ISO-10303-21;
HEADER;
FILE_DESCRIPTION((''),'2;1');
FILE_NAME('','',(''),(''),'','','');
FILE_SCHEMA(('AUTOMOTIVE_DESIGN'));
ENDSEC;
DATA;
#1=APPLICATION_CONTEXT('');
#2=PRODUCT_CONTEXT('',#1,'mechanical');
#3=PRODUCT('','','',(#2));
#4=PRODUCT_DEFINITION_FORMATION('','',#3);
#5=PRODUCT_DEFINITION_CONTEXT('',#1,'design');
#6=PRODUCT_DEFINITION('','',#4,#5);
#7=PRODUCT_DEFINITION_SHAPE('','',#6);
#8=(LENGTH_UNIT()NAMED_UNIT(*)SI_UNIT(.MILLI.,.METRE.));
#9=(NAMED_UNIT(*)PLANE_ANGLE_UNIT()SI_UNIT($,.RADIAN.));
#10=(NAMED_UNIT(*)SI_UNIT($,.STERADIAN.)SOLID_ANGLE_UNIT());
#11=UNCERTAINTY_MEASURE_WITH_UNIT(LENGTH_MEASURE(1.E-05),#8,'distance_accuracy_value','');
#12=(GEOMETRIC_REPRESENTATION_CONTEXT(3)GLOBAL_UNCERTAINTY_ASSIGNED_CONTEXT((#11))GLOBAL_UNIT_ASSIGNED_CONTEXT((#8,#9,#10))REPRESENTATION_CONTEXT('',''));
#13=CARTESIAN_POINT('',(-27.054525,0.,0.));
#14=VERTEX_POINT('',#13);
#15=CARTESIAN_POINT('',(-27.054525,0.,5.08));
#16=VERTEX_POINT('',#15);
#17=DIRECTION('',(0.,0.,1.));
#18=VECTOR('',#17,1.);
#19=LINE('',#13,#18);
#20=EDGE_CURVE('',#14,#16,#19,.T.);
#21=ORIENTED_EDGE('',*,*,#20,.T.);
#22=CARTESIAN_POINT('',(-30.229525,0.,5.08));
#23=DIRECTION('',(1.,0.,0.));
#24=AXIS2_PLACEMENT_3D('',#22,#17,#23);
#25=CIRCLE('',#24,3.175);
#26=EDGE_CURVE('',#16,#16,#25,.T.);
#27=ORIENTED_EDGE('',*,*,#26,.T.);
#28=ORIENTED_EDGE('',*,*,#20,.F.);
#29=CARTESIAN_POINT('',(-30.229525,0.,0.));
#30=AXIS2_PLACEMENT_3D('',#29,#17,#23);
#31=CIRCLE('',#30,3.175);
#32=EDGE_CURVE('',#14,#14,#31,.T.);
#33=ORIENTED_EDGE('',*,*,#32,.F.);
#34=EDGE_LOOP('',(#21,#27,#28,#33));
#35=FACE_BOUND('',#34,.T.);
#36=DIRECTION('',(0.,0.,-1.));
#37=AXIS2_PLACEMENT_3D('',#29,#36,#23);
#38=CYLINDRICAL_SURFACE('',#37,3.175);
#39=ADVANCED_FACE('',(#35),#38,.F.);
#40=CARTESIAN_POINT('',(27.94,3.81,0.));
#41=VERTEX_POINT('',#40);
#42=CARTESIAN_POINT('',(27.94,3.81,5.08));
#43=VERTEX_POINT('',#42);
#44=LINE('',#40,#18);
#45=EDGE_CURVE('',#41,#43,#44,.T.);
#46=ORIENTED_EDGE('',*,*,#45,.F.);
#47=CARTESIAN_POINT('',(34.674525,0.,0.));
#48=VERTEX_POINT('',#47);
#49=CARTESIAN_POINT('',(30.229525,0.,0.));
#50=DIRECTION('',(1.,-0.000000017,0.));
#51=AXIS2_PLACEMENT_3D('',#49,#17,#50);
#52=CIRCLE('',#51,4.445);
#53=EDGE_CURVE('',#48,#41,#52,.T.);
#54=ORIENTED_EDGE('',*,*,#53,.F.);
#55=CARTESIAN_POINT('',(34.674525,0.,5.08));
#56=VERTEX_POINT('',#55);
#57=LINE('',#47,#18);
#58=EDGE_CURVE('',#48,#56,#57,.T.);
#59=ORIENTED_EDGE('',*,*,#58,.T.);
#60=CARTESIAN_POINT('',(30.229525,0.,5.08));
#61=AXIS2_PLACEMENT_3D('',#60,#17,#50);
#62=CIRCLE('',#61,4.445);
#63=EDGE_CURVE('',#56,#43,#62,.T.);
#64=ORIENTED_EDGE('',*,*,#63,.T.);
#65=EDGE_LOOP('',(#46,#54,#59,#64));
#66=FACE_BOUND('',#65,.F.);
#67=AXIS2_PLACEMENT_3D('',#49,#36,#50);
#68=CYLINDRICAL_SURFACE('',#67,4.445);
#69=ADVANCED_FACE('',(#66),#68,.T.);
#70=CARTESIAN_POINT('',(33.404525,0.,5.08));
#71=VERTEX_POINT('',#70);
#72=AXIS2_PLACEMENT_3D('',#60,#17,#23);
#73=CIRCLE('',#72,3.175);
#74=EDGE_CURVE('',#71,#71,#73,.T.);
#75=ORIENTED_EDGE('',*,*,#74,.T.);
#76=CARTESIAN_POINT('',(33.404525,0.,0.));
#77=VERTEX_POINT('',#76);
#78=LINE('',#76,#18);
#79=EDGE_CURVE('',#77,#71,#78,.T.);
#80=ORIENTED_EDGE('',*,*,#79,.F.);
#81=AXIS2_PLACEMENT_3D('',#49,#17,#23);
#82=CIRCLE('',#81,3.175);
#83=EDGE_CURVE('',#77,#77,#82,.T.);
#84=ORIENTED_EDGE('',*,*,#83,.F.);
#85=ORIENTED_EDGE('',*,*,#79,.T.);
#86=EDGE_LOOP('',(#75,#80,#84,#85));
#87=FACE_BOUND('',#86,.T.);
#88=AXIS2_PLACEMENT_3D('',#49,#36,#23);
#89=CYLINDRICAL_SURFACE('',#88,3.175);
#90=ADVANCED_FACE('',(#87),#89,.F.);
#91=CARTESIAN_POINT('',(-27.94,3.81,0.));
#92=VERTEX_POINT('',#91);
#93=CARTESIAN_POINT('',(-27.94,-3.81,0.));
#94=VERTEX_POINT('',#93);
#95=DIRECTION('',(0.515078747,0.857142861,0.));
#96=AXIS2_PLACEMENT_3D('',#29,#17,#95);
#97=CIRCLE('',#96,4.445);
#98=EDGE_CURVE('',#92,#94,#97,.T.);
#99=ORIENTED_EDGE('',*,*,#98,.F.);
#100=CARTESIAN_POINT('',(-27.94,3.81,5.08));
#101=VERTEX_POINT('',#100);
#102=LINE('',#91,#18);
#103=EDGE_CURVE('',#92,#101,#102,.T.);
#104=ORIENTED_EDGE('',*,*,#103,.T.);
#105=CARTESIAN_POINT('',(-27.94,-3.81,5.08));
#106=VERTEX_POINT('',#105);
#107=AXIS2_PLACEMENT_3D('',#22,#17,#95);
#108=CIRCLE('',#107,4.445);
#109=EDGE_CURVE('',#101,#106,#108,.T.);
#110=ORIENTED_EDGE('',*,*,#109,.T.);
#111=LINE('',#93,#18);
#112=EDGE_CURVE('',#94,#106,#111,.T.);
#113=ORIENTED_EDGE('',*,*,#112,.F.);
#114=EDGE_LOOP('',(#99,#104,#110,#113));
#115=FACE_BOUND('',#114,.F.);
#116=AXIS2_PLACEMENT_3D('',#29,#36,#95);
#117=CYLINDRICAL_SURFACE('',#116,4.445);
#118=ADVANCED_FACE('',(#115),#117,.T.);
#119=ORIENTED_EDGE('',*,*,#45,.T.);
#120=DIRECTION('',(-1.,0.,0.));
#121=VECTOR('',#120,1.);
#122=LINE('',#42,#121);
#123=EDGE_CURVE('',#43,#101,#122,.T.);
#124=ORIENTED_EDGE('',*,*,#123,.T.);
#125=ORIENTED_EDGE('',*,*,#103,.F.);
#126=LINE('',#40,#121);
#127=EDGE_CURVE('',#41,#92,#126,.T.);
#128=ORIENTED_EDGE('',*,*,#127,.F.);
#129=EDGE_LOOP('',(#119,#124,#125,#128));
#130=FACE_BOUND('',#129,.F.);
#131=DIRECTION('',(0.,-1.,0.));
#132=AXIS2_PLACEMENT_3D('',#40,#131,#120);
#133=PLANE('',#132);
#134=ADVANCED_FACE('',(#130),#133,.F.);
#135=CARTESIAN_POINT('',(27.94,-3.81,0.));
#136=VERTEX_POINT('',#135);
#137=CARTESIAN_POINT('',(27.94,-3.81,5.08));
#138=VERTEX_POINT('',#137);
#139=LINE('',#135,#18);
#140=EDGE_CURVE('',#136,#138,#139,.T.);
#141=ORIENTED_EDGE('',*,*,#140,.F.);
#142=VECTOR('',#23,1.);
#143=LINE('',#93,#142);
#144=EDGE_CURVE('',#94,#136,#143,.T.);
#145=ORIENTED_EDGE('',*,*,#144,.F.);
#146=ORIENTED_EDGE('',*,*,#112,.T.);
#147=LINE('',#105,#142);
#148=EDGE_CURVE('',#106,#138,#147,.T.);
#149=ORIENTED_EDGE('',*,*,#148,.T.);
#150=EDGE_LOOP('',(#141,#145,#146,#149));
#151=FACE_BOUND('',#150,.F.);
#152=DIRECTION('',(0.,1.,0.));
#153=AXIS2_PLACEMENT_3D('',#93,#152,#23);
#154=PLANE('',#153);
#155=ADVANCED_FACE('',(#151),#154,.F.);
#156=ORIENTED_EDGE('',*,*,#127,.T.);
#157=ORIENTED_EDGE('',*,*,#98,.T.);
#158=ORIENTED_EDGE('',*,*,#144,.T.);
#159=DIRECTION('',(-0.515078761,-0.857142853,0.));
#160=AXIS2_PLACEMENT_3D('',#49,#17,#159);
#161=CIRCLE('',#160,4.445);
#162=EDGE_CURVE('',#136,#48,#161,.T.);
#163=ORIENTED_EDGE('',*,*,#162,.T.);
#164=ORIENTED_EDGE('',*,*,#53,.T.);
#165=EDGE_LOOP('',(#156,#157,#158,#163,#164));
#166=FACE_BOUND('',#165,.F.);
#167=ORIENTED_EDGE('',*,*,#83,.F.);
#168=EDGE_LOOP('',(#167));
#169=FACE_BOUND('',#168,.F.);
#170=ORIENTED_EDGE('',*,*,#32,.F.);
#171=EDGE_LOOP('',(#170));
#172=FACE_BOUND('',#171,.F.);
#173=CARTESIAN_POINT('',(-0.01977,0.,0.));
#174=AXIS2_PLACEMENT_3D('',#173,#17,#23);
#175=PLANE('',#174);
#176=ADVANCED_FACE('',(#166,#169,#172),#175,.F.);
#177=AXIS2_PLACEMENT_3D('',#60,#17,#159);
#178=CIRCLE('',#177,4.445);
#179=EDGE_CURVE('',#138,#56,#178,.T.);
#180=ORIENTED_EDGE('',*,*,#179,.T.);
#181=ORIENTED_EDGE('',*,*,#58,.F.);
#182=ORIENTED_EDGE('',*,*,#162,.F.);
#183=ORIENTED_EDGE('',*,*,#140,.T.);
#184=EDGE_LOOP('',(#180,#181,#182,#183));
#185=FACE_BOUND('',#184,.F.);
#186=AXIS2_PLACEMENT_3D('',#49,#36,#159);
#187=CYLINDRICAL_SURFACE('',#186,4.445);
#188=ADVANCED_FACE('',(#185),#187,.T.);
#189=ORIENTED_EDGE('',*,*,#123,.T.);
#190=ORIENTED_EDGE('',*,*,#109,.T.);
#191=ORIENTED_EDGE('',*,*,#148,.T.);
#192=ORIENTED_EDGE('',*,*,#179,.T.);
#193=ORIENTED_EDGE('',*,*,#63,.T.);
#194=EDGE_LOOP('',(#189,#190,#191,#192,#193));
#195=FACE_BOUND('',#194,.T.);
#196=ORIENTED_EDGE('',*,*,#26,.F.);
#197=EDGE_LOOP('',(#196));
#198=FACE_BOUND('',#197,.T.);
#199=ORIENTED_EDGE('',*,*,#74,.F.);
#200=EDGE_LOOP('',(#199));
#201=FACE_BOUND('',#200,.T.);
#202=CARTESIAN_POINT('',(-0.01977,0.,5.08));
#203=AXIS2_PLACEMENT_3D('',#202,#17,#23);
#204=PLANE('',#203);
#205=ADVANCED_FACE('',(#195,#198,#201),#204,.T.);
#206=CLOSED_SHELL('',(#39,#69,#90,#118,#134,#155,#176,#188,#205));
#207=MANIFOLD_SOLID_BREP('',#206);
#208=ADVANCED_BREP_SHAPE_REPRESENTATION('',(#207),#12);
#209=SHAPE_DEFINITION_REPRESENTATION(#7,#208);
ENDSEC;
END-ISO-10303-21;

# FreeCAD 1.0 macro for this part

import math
import FreeCAD as App
import Part
import Sketcher

V = App.Vector
Q = App.Units.Quantity

doc = App.newDocument("Part")
params = doc.addObject("Spreadsheet::Sheet", "Params")
for row, (alias, value) in enumerate([
    ("sketch1_diameter", "0.25 in"),
    ("sketch1_width", "2.2 in"),
    ("sketch1_radius", "0.175 in"),
    ("pad1_length", "0.2 in"),
], start=1):
    params.set(f"A{row}", alias)
    params.set(f"B{row}", "=" + value)
    params.setAlias(f"B{row}", alias)

body = doc.addObject("PartDesign::Body", "Body")

sketch1 = body.newObject("Sketcher::SketchObject", "Sketch")
sketch1.AttachmentSupport = (doc.getObject("XY_Plane"), [""])
sketch1.MapMode = "FlatFace"
sketch1.addGeometry([
    Part.LineSegment(V(27.9, 3.8, 0), V(-27.9, 3.8, 0)),
    Part.ArcOfCircle(Part.Circle(V(-30.2, 0, 0), V(0, 0, 1), 4.4), math.radians(59), math.radians(301)),
    Part.LineSegment(V(-27.9, -3.8, 0), V(27.9, -3.8, 0)),
    Part.ArcOfCircle(Part.Circle(V(30.2, 0, 0), V(0, 0, 1), 4.4), math.radians(-121), math.radians(0)),
    Part.ArcOfCircle(Part.Circle(V(30.2, 0, 0), V(0, 0, 1), 4.4), math.radians(0), math.radians(121)),
    Part.Circle(V(-30.2, 0, 0), V(0, 0, 1), 3.2),
    Part.Circle(V(30.2, 0, 0), V(0, 0, 1), 3.2),
], False)
sketch1.addConstraint([
    Sketcher.Constraint("Coincident", 0, 2, 1, 1),
    Sketcher.Constraint("Coincident", 1, 2, 2, 1),
    Sketcher.Constraint("Coincident", 2, 2, 3, 1),
    Sketcher.Constraint("Tangent", 3, 2, 4, 1),
    Sketcher.Constraint("Coincident", 4, 2, 0, 1),
    Sketcher.Constraint("Horizontal", 0),
    Sketcher.Constraint("Horizontal", 2),
    Sketcher.Constraint("Coincident", 5, 3, 1, 3),
    Sketcher.Constraint("Coincident", 6, 3, 3, 3),
    Sketcher.Constraint("Equal", 1, 3),
    Sketcher.Constraint("Equal", 3, 4),
    Sketcher.Constraint("Equal", 5, 6),
    Sketcher.Constraint("Symmetric", 1, 3, 3, 3, -1, 1),
    Sketcher.Constraint("Symmetric", 0, 2, 1, 2, -1),
    Sketcher.Constraint("PointOnObject", 3, 2, -1),
    Sketcher.Constraint("Diameter", 5, Q("0.25 in")),
    Sketcher.Constraint("DistanceX", 0, 2, 0, 1, Q("2.2 in")),
    Sketcher.Constraint("Radius", 1, Q("0.175 in")),
    Sketcher.Constraint("DistanceY", 1, 2, 0, 2, Q("0.3 in")),
])
sketch1.setExpression("Constraints[15]", "Params.sketch1_diameter")
sketch1.setExpression("Constraints[16]", "Params.sketch1_width")
sketch1.setExpression("Constraints[17]", "Params.sketch1_radius")
pad1 = body.newObject("PartDesign::Pad", "Pad")
pad1.Profile = sketch1
pad1.setExpression("Length", "Params.pad1_length")

doc.recompute()
